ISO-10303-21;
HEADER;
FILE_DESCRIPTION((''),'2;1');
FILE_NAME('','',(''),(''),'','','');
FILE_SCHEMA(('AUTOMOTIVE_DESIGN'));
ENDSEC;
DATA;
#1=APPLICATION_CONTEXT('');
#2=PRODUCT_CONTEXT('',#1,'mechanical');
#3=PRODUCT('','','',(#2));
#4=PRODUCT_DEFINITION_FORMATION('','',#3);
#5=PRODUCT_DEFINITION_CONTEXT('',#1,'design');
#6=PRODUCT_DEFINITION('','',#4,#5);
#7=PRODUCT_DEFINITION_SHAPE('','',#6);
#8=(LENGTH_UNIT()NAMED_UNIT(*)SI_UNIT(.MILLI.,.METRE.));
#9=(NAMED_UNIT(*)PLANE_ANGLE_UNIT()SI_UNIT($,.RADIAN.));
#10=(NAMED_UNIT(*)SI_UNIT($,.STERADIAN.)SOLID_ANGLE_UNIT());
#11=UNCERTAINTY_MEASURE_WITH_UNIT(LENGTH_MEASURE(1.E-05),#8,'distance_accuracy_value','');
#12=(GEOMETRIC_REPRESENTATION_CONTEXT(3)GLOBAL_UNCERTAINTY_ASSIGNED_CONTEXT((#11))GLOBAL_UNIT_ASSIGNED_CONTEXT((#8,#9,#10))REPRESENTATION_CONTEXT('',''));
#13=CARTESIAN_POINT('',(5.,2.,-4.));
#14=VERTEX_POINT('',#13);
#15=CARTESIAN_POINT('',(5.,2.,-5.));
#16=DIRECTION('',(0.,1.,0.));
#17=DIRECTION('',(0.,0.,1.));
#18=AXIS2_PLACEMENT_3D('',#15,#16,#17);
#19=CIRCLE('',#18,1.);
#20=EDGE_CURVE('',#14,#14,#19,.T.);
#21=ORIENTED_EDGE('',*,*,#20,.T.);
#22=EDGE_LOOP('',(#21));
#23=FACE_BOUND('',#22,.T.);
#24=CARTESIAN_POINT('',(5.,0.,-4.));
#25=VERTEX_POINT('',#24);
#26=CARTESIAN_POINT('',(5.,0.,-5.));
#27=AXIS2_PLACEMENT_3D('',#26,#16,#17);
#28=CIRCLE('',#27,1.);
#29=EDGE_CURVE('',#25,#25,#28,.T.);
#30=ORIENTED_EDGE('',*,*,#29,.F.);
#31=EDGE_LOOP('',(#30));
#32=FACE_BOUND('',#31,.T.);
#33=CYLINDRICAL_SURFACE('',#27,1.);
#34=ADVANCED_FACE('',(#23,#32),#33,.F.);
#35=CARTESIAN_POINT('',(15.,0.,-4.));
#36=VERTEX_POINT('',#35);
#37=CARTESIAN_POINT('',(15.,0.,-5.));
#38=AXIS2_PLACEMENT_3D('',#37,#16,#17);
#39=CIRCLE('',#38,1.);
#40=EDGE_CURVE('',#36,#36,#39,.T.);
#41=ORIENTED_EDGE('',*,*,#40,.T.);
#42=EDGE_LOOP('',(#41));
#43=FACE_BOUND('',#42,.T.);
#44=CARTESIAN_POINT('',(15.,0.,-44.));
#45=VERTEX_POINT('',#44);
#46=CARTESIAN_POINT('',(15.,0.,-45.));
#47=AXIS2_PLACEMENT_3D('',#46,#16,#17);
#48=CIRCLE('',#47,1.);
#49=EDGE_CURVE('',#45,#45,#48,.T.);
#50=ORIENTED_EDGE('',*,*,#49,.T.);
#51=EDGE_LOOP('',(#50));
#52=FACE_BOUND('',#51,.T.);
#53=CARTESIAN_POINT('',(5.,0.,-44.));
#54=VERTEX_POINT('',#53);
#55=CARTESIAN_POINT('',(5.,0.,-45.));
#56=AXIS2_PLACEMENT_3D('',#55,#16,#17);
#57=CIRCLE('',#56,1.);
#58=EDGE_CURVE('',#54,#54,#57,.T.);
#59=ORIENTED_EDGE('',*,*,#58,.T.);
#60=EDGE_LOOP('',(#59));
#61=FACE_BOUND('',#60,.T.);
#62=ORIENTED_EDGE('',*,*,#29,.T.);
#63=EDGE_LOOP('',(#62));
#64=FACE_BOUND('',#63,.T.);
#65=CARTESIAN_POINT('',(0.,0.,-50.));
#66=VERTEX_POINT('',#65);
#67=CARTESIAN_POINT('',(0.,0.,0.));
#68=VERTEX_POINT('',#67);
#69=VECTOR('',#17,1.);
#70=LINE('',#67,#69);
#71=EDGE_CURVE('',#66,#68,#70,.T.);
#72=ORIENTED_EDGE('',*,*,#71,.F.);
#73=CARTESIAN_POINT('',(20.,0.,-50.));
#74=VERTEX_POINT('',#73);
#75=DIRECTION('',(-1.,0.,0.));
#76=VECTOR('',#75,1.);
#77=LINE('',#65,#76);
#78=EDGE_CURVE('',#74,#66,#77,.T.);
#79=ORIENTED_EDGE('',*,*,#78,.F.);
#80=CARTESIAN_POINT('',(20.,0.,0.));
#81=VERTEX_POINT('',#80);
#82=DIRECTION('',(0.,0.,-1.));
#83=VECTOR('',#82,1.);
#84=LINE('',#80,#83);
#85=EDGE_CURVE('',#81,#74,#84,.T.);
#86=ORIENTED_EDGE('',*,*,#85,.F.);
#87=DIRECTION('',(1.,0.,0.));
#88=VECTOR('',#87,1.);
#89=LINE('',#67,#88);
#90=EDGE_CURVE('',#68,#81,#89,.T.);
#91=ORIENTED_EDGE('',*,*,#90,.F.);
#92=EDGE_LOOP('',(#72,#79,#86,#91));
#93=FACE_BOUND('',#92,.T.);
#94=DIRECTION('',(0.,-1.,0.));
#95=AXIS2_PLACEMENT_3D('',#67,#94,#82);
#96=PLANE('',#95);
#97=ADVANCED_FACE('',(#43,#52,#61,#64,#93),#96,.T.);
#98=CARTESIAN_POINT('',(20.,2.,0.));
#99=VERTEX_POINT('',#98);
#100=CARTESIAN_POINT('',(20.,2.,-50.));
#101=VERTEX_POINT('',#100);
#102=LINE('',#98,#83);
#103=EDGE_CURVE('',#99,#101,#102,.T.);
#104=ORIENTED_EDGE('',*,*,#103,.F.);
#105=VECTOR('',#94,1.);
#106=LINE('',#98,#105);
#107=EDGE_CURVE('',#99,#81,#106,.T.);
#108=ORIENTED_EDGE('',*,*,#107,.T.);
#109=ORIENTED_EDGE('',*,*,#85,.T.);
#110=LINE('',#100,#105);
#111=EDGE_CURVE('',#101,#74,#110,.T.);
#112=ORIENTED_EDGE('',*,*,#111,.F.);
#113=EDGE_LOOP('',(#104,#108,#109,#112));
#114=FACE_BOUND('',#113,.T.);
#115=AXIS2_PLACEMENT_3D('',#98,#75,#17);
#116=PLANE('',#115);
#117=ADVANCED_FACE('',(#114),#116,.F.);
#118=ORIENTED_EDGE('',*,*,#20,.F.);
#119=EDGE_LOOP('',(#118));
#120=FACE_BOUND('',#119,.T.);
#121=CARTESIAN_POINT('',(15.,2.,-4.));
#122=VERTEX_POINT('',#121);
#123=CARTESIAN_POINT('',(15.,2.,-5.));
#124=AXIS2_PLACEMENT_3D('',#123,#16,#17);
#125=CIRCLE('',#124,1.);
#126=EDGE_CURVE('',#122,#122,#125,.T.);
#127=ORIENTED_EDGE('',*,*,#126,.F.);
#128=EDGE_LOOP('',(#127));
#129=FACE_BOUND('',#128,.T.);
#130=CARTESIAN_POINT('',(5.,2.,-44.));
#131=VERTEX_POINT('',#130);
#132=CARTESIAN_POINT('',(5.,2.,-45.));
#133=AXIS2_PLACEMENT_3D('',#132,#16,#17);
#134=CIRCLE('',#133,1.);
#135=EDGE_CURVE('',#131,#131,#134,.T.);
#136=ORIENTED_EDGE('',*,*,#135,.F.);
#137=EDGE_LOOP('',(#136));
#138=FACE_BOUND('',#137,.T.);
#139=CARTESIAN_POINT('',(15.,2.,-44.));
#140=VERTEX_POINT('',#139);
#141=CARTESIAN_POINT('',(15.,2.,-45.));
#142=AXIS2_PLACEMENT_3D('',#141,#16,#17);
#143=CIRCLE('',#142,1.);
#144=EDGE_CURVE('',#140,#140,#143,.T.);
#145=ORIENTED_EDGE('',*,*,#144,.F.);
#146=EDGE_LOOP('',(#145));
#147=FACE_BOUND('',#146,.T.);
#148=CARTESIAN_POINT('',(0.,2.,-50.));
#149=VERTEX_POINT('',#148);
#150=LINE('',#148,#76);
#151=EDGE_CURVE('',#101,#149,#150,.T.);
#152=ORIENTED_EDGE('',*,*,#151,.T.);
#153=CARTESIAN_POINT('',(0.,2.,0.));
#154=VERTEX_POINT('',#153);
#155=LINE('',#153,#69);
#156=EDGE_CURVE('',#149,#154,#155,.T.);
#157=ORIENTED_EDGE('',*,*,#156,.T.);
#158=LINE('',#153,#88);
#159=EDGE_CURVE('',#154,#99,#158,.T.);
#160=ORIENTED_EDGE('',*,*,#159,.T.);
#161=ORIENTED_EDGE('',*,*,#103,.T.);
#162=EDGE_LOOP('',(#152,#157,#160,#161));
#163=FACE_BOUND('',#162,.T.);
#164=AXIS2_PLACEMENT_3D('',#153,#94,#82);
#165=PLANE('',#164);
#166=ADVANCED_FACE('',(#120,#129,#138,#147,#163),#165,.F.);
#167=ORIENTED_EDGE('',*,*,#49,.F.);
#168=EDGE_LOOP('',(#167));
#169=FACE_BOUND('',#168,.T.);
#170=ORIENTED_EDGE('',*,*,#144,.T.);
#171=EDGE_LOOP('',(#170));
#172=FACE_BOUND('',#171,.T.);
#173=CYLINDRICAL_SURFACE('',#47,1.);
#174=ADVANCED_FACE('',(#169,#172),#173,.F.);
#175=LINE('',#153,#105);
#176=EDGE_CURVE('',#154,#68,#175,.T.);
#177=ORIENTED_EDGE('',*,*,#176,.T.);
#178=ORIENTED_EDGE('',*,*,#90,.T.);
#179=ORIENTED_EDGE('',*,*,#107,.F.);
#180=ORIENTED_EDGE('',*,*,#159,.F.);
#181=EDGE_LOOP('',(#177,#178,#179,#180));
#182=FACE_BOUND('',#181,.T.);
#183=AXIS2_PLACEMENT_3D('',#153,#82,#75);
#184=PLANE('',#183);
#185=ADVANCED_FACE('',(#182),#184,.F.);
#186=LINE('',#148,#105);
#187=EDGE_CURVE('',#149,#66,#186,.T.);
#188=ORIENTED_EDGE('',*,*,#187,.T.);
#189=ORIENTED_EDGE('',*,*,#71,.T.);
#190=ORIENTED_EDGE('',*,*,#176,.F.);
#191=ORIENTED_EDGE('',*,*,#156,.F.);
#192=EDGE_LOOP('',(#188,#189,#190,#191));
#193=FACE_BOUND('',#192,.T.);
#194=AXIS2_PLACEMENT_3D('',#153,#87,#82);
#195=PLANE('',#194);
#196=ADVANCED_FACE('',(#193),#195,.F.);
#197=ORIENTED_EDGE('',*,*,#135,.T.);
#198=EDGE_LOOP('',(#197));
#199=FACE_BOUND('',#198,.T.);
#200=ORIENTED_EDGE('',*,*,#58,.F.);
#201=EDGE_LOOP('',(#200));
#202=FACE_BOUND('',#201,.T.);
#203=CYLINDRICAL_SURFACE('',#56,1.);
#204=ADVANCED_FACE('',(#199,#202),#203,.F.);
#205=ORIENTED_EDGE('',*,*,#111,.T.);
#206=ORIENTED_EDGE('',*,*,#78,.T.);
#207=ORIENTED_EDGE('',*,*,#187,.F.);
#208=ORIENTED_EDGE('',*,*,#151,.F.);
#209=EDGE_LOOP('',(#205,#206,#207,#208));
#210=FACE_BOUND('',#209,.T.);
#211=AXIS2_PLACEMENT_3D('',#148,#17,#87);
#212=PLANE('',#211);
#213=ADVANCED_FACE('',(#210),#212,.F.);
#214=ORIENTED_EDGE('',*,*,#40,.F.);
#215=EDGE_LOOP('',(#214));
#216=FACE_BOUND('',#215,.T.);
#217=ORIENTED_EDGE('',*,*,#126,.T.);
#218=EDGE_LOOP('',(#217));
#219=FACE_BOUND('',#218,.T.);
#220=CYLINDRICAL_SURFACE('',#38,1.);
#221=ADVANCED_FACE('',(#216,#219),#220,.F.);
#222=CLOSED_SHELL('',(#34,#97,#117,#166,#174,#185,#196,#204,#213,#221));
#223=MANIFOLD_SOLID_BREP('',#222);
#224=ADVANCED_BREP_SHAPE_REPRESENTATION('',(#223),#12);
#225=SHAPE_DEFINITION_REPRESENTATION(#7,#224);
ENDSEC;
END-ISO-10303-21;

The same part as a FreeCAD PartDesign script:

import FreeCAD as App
import Part
import Sketcher

V = App.Vector


def add_polygon(sketch, points):
    """Adds a closed chain of lines whose ends are joined by coincident constraints."""
    first, n = sketch.GeometryCount, len(points)
    for a, b in zip(points, points[1:] + points[:1]):
        sketch.addGeometry(Part.LineSegment(App.Vector(*a, 0), App.Vector(*b, 0)), False)
    for i in range(n):
        sketch.addConstraint(Sketcher.Constraint("Coincident", first + i, 2, first + (i + 1) % n, 1))

doc = App.newDocument("Part")
params = doc.addObject("Spreadsheet::Sheet", "Params")
for row, (alias, value) in enumerate([
    ("sketch1_width", "20 mm"),
    ("sketch1_height", "50 mm"),
    ("pad1_length", "2 mm"),
    ("sketch2_diameter", "2 mm"),
], start=1):
    params.set(f"A{row}", alias)
    params.set(f"B{row}", "=" + value)
    params.setAlias(f"B{row}", alias)

body = doc.addObject("PartDesign::Body", "Body")

sketch1 = body.newObject("Sketcher::SketchObject", "Sketch")
sketch1.AttachmentSupport = (doc.getObject("XZ_Plane"), [""])
sketch1.MapMode = "FlatFace"
add_polygon(sketch1, [(0, -50), (0, 0), (20, 0), (20, -50)])
sketch1.addConstraint([
    Sketcher.Constraint("Vertical", 0),
    Sketcher.Constraint("Horizontal", 1),
    Sketcher.Constraint("Vertical", 2),
    Sketcher.Constraint("Horizontal", 3),
    Sketcher.Constraint("Coincident", 0, 2, -1, 1),
    Sketcher.Constraint("DistanceX", 1, 1, 1, 2, 20.0),
    Sketcher.Constraint("DistanceY", 0, 1, 0, 2, 50.0),
])
sketch1.setExpression("Constraints[9]", "Params.sketch1_width")
sketch1.setExpression("Constraints[10]", "Params.sketch1_height")
pad1 = body.newObject("PartDesign::Pad", "Pad")
pad1.Profile = sketch1
pad1.setExpression("Length", "Params.pad1_length")
pad1.Reversed = True

sketch2 = body.newObject("Sketcher::SketchObject", "Sketch001")
sketch2.AttachmentSupport = (doc.getObject("XZ_Plane"), [""])
sketch2.MapMode = "FlatFace"
sketch2.AttachmentOffset = App.Placement(V(0, 0, -2), App.Rotation())
sketch2.addGeometry([
    Part.Circle(V(5, -45, 0), V(0, 0, 1), 1),
    Part.Circle(V(15, -45, 0), V(0, 0, 1), 1),
    Part.Circle(V(15, -5, 0), V(0, 0, 1), 1),
    Part.Circle(V(5, -5, 0), V(0, 0, 1), 1),
], False)
sketch2.addConstraint([
    Sketcher.Constraint("Equal", 0, 1),
    Sketcher.Constraint("Equal", 1, 2),
    Sketcher.Constraint("Equal", 2, 3),
    Sketcher.Constraint("Horizontal", 0, 3, 1, 3),
    Sketcher.Constraint("Horizontal", 2, 3, 3, 3),
    Sketcher.Constraint("Vertical", 1, 3, 2, 3),
    Sketcher.Constraint("Vertical", 0, 3, 3, 3),
    Sketcher.Constraint("Diameter", 0, 2.0),
    Sketcher.Constraint("DistanceX", -1, 1, 0, 3, 5.0),
    Sketcher.Constraint("DistanceY", 0, 3, -1, 1, 45.0),
    Sketcher.Constraint("DistanceX", -1, 1, 1, 3, 15.0),
    Sketcher.Constraint("DistanceY", 2, 3, -1, 1, 5.0),
])
sketch2.setExpression("Constraints[7]", "Params.sketch2_diameter")
pocket1 = body.newObject("PartDesign::Pocket", "Pocket")
pocket1.Profile = sketch2
pocket1.Type = "ThroughAll"
pocket1.Reversed = True

doc.recompute()
